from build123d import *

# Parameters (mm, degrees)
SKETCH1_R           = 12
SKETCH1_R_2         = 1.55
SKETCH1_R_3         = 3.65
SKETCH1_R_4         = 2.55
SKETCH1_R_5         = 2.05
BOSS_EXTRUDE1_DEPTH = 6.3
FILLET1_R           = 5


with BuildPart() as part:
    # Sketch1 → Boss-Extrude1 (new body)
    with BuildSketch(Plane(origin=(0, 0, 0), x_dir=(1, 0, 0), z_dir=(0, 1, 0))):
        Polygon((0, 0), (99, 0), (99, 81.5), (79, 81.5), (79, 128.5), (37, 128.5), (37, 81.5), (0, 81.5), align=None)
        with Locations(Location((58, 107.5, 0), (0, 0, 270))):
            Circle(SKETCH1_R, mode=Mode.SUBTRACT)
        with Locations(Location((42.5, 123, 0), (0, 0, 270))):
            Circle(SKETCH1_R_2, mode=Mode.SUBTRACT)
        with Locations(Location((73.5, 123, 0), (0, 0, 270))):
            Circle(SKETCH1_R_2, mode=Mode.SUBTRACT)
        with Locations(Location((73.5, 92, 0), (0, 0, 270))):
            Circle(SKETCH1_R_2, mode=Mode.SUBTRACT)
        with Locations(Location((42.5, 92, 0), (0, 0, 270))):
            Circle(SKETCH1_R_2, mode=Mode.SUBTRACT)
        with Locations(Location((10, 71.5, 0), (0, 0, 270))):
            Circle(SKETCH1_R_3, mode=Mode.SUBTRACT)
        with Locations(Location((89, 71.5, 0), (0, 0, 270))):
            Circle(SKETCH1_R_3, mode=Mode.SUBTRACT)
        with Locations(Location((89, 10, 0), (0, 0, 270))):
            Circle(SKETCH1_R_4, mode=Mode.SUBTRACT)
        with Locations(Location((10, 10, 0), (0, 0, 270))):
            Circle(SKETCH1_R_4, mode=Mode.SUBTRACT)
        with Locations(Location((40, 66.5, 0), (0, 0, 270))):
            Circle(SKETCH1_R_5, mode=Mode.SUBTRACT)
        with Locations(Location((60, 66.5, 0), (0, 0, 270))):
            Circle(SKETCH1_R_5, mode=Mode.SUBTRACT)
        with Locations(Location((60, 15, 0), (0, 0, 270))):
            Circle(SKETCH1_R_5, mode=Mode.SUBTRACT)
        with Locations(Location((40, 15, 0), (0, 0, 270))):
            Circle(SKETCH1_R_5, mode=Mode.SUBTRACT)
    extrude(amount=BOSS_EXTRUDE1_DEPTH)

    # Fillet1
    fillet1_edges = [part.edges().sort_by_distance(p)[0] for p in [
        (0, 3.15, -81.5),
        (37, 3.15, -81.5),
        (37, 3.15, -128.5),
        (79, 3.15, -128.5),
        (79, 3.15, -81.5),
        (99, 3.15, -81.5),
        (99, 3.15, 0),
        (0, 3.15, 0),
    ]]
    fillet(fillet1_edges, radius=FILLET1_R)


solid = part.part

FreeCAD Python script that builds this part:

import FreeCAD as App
import Part
import Sketcher
from FreeCAD import Vector


def edges_at(feature, points):
    """Names of the edges that pass closest to the given points."""
    edges = feature.Shape.Edges
    near = lambda p: min(range(len(edges)), key=lambda i: edges[i].distToShape(Part.Vertex(*p))[0])
    return sorted({f"Edge{near(p) + 1}" for p in points})

doc = App.newDocument("Part")
body = doc.addObject("PartDesign::Body", "Body")

sketch1 = body.newObject("Sketcher::SketchObject", "Sketch")
sketch1.AttachmentSupport = (doc.getObject("XZ_Plane"), [""])
sketch1.MapMode = "FlatFace"
sketch1.addGeometry([
    Part.LineSegment(Vector(0, 0, 0), Vector(99, 0, 0)),
    Part.LineSegment(Vector(99, 0, 0), Vector(99, -81.5, 0)),
    Part.LineSegment(Vector(99, -81.5, 0), Vector(79, -81.5, 0)),
    Part.LineSegment(Vector(79, -81.5, 0), Vector(79, -128.5, 0)),
    Part.LineSegment(Vector(79, -128.5, 0), Vector(37, -128.5, 0)),
    Part.LineSegment(Vector(37, -128.5, 0), Vector(37, -81.5, 0)),
    Part.LineSegment(Vector(37, -81.5, 0), Vector(0, -81.5, 0)),
    Part.LineSegment(Vector(0, -81.5, 0), Vector(0, 0, 0)),
    Part.Circle(Vector(10, -10, 0), Vector(0, 0, 1), 2.5),
    Part.Circle(Vector(40, -15, 0), Vector(0, 0, 1), 2),
    Part.Circle(Vector(60, -15, 0), Vector(0, 0, 1), 2),
    Part.Circle(Vector(89, -10, 0), Vector(0, 0, 1), 2.5),
    Part.Circle(Vector(10, -71.5, 0), Vector(0, 0, 1), 3.6),
    Part.Circle(Vector(40, -66.5, 0), Vector(0, 0, 1), 2),
    Part.Circle(Vector(42.5, -92, 0), Vector(0, 0, 1), 1.6),
    Part.Circle(Vector(42.5, -123, 0), Vector(0, 0, 1), 1.6),
    Part.Circle(Vector(60, -66.5, 0), Vector(0, 0, 1), 2),
    Part.Circle(Vector(89, -71.5, 0), Vector(0, 0, 1), 3.6),
    Part.Circle(Vector(73.5, -92, 0), Vector(0, 0, 1), 1.6),
    Part.Circle(Vector(58, -107.5, 0), Vector(0, 0, 1), 12),
    Part.Circle(Vector(73.5, -123, 0), Vector(0, 0, 1), 1.6),
], False)
sketch1.addConstraint([
    Sketcher.Constraint("Coincident", 0, 2, 1, 1),
    Sketcher.Constraint("Coincident", 1, 2, 2, 1),
    Sketcher.Constraint("Coincident", 2, 2, 3, 1),
    Sketcher.Constraint("Coincident", 3, 2, 4, 1),
    Sketcher.Constraint("Coincident", 4, 2, 5, 1),
    Sketcher.Constraint("Coincident", 5, 2, 6, 1),
    Sketcher.Constraint("Coincident", 6, 2, 7, 1),
    Sketcher.Constraint("Coincident", 7, 2, 0, 1),
    Sketcher.Constraint("Horizontal", 0),
    Sketcher.Constraint("Vertical", 1),
    Sketcher.Constraint("Horizontal", 2),
    Sketcher.Constraint("Vertical", 3),
    Sketcher.Constraint("Horizontal", 4),
    Sketcher.Constraint("Vertical", 5),
    Sketcher.Constraint("Horizontal", 6),
    Sketcher.Constraint("Vertical", 7),
    Sketcher.Constraint("Coincident", 7, 2, -1, 1),
    Sketcher.Constraint("Equal", 9, 10),
    Sketcher.Constraint("Equal", 8, 11),
    Sketcher.Constraint("Equal", 10, 13),
    Sketcher.Constraint("Equal", 14, 15),
    Sketcher.Constraint("Equal", 13, 16),
    Sketcher.Constraint("Equal", 12, 17),
    Sketcher.Constraint("Equal", 15, 18),
    Sketcher.Constraint("Equal", 18, 20),
    Sketcher.Constraint("Horizontal", 9, 3, 10, 3),
    Sketcher.Constraint("Horizontal", 8, 3, 11, 3),
    Sketcher.Constraint("Horizontal", 13, 3, 16, 3),
    Sketcher.Constraint("Horizontal", 12, 3, 17, 3),
    Sketcher.Constraint("Horizontal", 14, 3, 18, 3),
    Sketcher.Constraint("Horizontal", 15, 3, 20, 3),
    Sketcher.Constraint("Horizontal", 2, 2, 5, 2),
    Sketcher.Constraint("Vertical", 8, 3, 12, 3),
    Sketcher.Constraint("Vertical", 9, 3, 13, 3),
    Sketcher.Constraint("Vertical", 14, 3, 15, 3),
    Sketcher.Constraint("Vertical", 10, 3, 16, 3),
    Sketcher.Constraint("Vertical", 11, 3, 17, 3),
    Sketcher.Constraint("Vertical", 18, 3, 20, 3),
    Sketcher.Constraint("Diameter", 19, 24.0),
    Sketcher.Constraint("Diameter", 8, 5.1),
    Sketcher.Constraint("Diameter", 9, 4.1),
    Sketcher.Constraint("Diameter", 12, 7.3),
    Sketcher.Constraint("Diameter", 14, 3.1),
    Sketcher.Constraint("DistanceX", 0, 1, 0, 2, 99.0),
    Sketcher.Constraint("DistanceX", 2, 2, 2, 1, 20.0),
    Sketcher.Constraint("DistanceX", 4, 2, 4, 1, 42.0),
    Sketcher.Constraint("DistanceY", 3, 2, 3, 1, 47.0),
    Sketcher.Constraint("DistanceY", 1, 2, 1, 1, 81.5),
    Sketcher.Constraint("DistanceX", -1, 1, 8, 3, 10.0),
    Sketcher.Constraint("DistanceY", 8, 3, -1, 1, 10.0),
    Sketcher.Constraint("DistanceX", -1, 1, 9, 3, 40.0),
    Sketcher.Constraint("DistanceY", 9, 3, -1, 1, 15.0),
    Sketcher.Constraint("DistanceX", -1, 1, 10, 3, 60.0),
    Sketcher.Constraint("DistanceX", -1, 1, 11, 3, 89.0),
    Sketcher.Constraint("DistanceY", 14, 3, -1, 1, 92.0),
    Sketcher.Constraint("DistanceY", 15, 3, -1, 1, 123.0),
    Sketcher.Constraint("DistanceX", -1, 1, 19, 3, 58.0),
    Sketcher.Constraint("DistanceY", 12, 3, 13, 3, 5.0),
    Sketcher.Constraint("DistanceX", 14, 3, 18, 3, 31.0),
    Sketcher.Constraint("DistanceY", 19, 3, 16, 3, 41.0),
    Sketcher.Constraint("DistanceY", 1, 2, 17, 3, 10.0),
    Sketcher.Constraint("DistanceX", -1, 1, 14, 3, 42.5),
])
pad1 = body.newObject("PartDesign::Pad", "Pad")
pad1.Profile = sketch1
pad1.Length = 6.3
pad1.Reversed = True
doc.recompute()

fillet = body.newObject("PartDesign::Fillet", "Fillet")
fillet.Base = (pad1, edges_at(pad1, [
    (0, 3.15, -81.5),
    (37, 3.15, -81.5),
    (37, 3.15, -128.5),
    (79, 3.15, -128.5),
    (79, 3.15, -81.5),
    (99, 3.15, -81.5),
    (99, 3.15, 0),
    (0, 3.15, 0),
]))
fillet.Radius = 5

doc.recompute()
